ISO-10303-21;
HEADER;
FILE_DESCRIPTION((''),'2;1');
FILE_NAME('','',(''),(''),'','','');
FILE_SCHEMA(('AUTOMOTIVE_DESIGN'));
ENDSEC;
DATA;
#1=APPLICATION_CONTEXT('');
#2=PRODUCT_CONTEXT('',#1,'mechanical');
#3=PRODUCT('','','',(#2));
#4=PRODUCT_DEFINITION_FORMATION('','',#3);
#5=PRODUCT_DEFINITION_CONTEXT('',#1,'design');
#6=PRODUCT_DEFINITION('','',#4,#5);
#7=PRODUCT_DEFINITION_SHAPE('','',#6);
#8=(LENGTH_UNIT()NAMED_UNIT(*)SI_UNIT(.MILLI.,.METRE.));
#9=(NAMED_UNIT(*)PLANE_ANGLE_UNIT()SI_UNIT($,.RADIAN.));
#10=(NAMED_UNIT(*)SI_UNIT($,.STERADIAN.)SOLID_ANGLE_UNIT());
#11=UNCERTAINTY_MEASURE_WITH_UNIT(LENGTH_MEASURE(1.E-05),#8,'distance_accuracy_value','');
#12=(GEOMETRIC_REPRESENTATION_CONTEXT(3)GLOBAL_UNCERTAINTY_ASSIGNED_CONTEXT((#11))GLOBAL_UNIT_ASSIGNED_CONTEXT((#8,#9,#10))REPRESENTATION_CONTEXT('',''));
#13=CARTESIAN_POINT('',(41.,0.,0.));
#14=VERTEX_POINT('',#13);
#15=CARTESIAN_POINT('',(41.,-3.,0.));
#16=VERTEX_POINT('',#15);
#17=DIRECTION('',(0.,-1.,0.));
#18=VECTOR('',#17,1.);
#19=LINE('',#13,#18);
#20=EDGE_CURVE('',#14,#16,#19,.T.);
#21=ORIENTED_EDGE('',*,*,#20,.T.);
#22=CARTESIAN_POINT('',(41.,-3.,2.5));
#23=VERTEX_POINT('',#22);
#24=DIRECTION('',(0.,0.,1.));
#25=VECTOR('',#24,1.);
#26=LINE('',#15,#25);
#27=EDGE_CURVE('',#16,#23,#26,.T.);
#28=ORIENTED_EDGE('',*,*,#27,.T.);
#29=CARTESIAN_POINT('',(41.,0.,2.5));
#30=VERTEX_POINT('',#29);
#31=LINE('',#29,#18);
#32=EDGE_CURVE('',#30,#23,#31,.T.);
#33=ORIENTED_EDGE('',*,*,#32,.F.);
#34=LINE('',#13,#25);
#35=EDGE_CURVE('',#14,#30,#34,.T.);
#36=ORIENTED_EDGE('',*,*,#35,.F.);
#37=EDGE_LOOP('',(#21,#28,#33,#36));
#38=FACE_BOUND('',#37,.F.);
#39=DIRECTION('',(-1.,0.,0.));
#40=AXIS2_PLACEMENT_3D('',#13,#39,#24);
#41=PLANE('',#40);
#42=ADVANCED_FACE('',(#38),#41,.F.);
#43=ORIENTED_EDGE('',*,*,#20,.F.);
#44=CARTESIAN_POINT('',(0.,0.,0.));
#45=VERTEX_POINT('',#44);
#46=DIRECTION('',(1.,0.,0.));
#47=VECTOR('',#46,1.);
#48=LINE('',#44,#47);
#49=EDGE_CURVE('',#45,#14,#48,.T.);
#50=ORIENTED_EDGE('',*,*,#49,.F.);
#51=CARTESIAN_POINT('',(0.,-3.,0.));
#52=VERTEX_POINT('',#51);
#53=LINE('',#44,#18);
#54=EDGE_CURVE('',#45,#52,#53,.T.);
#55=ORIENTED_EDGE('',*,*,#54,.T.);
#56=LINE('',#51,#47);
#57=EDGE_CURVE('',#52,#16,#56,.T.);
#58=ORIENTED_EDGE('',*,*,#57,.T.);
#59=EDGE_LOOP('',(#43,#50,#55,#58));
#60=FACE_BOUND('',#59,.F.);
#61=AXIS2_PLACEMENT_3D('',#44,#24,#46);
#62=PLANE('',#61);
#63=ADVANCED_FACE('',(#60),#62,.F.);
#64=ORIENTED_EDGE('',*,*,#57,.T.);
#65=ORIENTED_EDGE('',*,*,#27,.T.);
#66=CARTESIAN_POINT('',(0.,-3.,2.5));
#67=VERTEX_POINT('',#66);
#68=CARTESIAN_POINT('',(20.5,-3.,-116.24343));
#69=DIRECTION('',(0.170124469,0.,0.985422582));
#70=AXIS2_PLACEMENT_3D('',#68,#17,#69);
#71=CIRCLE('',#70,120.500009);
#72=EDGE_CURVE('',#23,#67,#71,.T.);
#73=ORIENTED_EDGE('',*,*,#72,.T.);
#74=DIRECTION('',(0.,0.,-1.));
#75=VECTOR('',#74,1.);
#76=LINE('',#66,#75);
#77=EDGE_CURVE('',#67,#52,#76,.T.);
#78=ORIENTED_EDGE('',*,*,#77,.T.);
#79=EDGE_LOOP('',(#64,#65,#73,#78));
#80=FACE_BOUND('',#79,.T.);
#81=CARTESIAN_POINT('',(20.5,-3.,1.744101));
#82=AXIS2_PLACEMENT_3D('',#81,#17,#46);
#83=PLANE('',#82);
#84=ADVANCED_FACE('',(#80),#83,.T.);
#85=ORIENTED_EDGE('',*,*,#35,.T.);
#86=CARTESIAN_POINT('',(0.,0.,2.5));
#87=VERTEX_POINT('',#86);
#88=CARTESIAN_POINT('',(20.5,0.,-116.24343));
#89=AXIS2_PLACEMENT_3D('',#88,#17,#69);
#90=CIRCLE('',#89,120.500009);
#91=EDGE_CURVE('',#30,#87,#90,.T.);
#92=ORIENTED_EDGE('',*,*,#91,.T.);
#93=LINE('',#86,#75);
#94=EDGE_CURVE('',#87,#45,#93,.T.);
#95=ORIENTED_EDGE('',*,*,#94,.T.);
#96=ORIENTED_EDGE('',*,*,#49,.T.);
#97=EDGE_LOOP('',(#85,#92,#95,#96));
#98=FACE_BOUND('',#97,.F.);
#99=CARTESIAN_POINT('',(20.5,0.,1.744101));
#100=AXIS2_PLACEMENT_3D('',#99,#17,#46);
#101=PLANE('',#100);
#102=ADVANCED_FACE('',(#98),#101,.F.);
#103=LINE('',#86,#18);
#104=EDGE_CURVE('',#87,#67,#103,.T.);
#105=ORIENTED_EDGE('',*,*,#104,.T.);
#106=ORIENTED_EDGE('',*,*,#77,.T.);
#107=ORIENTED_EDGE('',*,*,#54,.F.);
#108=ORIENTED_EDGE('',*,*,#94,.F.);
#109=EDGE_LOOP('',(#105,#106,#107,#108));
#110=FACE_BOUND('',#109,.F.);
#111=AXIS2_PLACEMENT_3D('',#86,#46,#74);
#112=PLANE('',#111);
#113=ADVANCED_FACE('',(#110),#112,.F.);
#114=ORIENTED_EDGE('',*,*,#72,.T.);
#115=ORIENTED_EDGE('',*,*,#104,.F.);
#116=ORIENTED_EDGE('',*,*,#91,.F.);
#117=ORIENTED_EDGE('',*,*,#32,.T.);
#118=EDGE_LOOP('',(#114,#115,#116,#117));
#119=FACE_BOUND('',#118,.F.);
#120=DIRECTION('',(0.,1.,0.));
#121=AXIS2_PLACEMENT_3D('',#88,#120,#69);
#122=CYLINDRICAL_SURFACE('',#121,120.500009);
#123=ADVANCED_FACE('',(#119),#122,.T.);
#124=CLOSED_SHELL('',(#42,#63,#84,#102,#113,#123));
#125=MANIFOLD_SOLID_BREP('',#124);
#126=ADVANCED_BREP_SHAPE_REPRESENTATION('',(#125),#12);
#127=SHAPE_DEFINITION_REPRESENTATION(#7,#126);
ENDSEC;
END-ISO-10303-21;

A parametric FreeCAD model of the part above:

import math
import FreeCAD as App
import Part
import Sketcher

V = App.Vector
Q = App.Units.Quantity

doc = App.newDocument("Part")
body = doc.addObject("PartDesign::Body", "Body")

sketch1 = body.newObject("Sketcher::SketchObject", "Sketch")
sketch1.AttachmentSupport = (doc.getObject("XZ_Plane"), [""])
sketch1.MapMode = "FlatFace"
sketch1.addGeometry(Part.LineSegment(V(0, 2.5, 0), V(0, 0, 0)), False)
sketch1.addGeometry(Part.LineSegment(V(0, 0, 0), V(41, 0, 0)), False)
sketch1.addGeometry(Part.LineSegment(V(41, 0, 0), V(41, 2.5, 0)), False)
sketch1.addGeometry(Part.ArcOfCircle(Part.Circle(V(20.5, -116.2, 0), V(0, 0, 1), 120.5), math.radians(80.2), math.radians(99.8)), False)
sketch1.addConstraint(Sketcher.Constraint("Coincident", 0, 2, 1, 1))
sketch1.addConstraint(Sketcher.Constraint("Coincident", 1, 2, 2, 1))
sketch1.addConstraint(Sketcher.Constraint("Coincident", 2, 2, 3, 1))
sketch1.addConstraint(Sketcher.Constraint("Coincident", 3, 2, 0, 1))
sketch1.addConstraint(Sketcher.Constraint("Vertical", 0))
sketch1.addConstraint(Sketcher.Constraint("Horizontal", 1))
sketch1.addConstraint(Sketcher.Constraint("Vertical", 2))
sketch1.addConstraint(Sketcher.Constraint("Coincident", 0, 2, -1, 1))
sketch1.addConstraint(Sketcher.Constraint("Horizontal", 2, 2, 3, 2))
sketch1.addConstraint(Sketcher.Constraint("DistanceX", 1, 1, 1, 2, Q("41 mm")))
sketch1.addConstraint(Sketcher.Constraint("DistanceY", 0, 2, 0, 1, Q("2.5 mm")))
sketch1.addConstraint(Sketcher.Constraint("Radius", 3, Q("120.500009 mm")))
pad1 = body.newObject("PartDesign::Pad", "Pad")
pad1.Profile = sketch1
pad1.Length = 3

doc.recompute()
